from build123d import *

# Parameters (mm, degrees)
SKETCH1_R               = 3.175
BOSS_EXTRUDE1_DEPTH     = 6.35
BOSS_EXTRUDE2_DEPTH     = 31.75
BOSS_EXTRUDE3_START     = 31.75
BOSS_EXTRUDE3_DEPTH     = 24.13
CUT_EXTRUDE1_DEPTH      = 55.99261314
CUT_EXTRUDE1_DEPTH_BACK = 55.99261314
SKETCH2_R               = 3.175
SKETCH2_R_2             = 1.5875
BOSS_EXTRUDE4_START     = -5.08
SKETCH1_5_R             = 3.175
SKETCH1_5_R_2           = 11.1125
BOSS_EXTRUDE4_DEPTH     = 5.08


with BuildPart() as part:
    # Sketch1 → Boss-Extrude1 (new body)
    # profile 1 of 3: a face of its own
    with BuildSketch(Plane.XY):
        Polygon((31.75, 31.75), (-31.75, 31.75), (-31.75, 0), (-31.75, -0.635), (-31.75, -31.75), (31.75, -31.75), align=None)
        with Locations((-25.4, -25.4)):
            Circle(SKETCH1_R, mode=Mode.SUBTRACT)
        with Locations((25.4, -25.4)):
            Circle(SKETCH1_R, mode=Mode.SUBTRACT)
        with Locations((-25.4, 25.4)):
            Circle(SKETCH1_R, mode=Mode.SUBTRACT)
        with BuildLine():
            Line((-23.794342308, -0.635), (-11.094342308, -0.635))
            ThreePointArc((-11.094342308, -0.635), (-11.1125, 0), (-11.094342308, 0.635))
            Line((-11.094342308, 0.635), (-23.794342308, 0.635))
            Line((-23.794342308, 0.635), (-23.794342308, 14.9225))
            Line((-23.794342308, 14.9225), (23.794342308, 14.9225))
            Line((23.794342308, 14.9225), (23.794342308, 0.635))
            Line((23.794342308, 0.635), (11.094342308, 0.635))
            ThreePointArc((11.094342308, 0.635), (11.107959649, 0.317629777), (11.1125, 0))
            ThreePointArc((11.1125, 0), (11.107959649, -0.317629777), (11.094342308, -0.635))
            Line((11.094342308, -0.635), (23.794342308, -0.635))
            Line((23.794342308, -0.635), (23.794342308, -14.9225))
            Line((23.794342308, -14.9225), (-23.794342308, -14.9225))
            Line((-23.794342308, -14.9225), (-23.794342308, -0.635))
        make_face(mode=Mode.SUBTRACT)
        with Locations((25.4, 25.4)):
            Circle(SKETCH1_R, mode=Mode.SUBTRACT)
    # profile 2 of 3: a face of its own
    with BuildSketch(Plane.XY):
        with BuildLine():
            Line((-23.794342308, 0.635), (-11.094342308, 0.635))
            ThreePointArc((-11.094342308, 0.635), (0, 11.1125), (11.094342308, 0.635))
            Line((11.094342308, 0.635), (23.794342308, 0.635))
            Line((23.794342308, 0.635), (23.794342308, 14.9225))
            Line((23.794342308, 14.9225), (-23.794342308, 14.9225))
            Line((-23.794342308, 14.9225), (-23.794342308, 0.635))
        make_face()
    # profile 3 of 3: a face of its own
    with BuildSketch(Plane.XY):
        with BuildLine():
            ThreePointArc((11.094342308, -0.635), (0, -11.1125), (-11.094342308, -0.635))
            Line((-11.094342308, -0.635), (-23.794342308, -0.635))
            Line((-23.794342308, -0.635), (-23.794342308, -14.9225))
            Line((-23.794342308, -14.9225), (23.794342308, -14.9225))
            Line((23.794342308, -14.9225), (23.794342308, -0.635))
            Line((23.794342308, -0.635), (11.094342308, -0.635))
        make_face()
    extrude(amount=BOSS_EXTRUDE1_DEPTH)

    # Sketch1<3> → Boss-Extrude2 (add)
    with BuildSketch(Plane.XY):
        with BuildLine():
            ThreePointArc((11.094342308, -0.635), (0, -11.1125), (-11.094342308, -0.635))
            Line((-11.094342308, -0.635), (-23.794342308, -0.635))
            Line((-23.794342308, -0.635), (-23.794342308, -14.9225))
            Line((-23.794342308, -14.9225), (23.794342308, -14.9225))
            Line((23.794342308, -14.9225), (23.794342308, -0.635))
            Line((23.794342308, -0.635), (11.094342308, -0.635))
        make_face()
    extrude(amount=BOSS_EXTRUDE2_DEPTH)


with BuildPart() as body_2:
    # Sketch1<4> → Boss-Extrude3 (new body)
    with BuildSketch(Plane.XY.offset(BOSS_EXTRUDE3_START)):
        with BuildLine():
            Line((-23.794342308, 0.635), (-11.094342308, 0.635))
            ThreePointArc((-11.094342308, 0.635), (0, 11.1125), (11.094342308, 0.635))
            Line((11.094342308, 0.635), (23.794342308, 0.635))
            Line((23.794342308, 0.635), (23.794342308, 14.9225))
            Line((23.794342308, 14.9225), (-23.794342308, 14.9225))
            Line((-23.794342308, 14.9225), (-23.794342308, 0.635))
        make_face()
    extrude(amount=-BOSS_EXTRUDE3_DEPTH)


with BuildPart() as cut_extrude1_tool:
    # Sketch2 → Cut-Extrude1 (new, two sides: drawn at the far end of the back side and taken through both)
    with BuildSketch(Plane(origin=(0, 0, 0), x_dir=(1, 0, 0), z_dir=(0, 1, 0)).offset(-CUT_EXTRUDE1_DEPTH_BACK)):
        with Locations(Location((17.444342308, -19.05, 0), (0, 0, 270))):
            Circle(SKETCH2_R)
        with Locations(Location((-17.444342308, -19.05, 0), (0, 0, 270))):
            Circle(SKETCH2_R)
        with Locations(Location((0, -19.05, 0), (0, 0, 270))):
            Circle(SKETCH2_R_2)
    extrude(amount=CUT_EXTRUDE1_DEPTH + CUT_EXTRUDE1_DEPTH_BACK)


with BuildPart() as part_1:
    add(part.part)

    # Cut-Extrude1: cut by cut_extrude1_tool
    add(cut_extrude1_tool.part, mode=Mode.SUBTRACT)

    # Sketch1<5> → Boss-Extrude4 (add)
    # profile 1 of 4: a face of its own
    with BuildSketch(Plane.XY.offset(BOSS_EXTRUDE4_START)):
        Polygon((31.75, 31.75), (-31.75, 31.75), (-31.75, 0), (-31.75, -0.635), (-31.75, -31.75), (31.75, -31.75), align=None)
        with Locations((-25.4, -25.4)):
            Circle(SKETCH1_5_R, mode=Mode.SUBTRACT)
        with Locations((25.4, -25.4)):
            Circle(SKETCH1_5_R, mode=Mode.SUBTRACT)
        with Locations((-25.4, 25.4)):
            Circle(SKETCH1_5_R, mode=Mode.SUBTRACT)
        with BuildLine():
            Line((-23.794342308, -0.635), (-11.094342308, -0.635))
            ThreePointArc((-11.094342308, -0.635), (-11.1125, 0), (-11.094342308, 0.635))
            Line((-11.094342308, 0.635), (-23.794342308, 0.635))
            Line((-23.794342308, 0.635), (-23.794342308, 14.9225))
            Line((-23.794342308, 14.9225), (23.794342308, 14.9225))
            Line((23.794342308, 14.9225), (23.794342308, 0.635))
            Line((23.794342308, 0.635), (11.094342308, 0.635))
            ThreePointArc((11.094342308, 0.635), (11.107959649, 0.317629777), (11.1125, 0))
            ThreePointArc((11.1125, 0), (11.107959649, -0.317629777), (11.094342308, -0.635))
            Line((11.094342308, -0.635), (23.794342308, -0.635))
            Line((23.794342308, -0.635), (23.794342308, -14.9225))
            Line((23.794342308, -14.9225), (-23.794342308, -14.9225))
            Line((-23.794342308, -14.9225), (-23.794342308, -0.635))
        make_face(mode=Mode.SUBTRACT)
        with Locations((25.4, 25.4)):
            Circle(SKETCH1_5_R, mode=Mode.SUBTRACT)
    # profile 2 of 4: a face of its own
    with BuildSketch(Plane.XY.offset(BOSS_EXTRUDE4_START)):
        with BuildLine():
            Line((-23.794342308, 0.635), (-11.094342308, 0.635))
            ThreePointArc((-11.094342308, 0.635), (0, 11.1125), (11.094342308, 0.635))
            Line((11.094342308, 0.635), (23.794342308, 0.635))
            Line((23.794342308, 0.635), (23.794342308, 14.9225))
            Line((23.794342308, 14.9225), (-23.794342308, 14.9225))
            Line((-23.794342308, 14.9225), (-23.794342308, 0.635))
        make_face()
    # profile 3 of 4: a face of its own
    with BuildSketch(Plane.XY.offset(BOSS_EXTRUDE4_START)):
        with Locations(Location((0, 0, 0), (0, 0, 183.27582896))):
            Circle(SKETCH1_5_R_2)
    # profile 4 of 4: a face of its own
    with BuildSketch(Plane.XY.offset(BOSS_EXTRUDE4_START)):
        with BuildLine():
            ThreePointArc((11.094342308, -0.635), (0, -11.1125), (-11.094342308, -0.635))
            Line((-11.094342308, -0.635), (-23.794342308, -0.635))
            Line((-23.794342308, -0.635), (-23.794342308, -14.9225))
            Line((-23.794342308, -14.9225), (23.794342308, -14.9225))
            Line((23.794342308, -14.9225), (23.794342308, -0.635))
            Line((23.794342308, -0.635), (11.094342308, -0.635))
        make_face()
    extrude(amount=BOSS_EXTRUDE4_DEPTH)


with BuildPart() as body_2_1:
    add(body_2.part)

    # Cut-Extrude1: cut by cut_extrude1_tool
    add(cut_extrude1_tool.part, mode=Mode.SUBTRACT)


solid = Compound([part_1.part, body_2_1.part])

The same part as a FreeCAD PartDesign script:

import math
import FreeCAD as App
import Part
import Sketcher

V = App.Vector
Q = App.Units.Quantity

doc = App.newDocument("Part")
body = doc.addObject("PartDesign::Body", "Body")

sketch1 = body.newObject("Sketcher::SketchObject", "Sketch")
sketch1.AttachmentSupport = (doc.getObject("XY_Plane"), [""])
sketch1.MapMode = "FlatFace"
sketch1.addGeometry(Part.LineSegment(V(31.75, 31.75, 0), V(-31.75, 31.75, 0)), False)
sketch1.addGeometry(Part.LineSegment(V(-31.75, 31.75, 0), V(-31.75, -31.75, 0)), False)
sketch1.addGeometry(Part.LineSegment(V(-31.75, -31.75, 0), V(31.75, -31.75, 0)), False)
sketch1.addGeometry(Part.LineSegment(V(31.75, -31.75, 0), V(31.75, 31.75, 0)), False)
sketch1.addGeometry(Part.Circle(V(-25.4, -25.4, 0), V(0, 0, 1), 3.175), False)
sketch1.addGeometry(Part.Circle(V(25.4, -25.4, 0), V(0, 0, 1), 3.175), False)
sketch1.addGeometry(Part.Circle(V(-25.4, 25.4, 0), V(0, 0, 1), 3.175), False)
sketch1.addGeometry(Part.ArcOfCircle(Part.Circle(V(0, 0, 0), V(0, 0, 1), 11.1125), math.radians(176.724171), math.radians(183.275829)), False)
sketch1.addGeometry(Part.ArcOfCircle(Part.Circle(V(0, 0, 0), V(0, 0, 1), 11.1125), math.radians(3.275829), math.radians(176.724171)), False)
sketch1.addGeometry(Part.ArcOfCircle(Part.Circle(V(-0.000001, 0, 0), V(0, 0, 1), 11.112501), math.radians(0), math.radians(3.275829)), False)
sketch1.addGeometry(Part.ArcOfCircle(Part.Circle(V(-0.000001, 0, 0), V(0, 0, 1), 11.112501), math.radians(-3.275829), math.radians(0)), False)
sketch1.addGeometry(Part.ArcOfCircle(Part.Circle(V(0, 0, 0), V(0, 0, 1), 11.1125), math.radians(-176.724171), math.radians(-3.275829)), False)
sketch1.addGeometry(Part.Circle(V(25.4, 25.4, 0), V(0, 0, 1), 3.175), False)
sketch1.addConstraint(Sketcher.Constraint("Coincident", 0, 2, 1, 1))
sketch1.addConstraint(Sketcher.Constraint("Coincident", 1, 2, 2, 1))
sketch1.addConstraint(Sketcher.Constraint("Coincident", 2, 2, 3, 1))
sketch1.addConstraint(Sketcher.Constraint("Coincident", 3, 2, 0, 1))
sketch1.addConstraint(Sketcher.Constraint("Tangent", 7, 1, 8, 2))
sketch1.addConstraint(Sketcher.Constraint("Tangent", 8, 1, 9, 2))
sketch1.addConstraint(Sketcher.Constraint("Tangent", 9, 1, 10, 2))
sketch1.addConstraint(Sketcher.Constraint("Tangent", 10, 1, 11, 2))
sketch1.addConstraint(Sketcher.Constraint("Tangent", 11, 1, 7, 2))
sketch1.addConstraint(Sketcher.Constraint("Horizontal", 0))
sketch1.addConstraint(Sketcher.Constraint("Vertical", 1))
sketch1.addConstraint(Sketcher.Constraint("Horizontal", 2))
sketch1.addConstraint(Sketcher.Constraint("Vertical", 3))
sketch1.addConstraint(Sketcher.Constraint("Coincident", 7, 3, -1, 1))
sketch1.addConstraint(Sketcher.Constraint("Coincident", 9, 3, -1, 1))
sketch1.addConstraint(Sketcher.Constraint("Equal", 4, 5))
sketch1.addConstraint(Sketcher.Constraint("Equal", 5, 6))
sketch1.addConstraint(Sketcher.Constraint("Equal", 6, 12))
sketch1.addConstraint(Sketcher.Constraint("Symmetric", 5, 3, 6, 3, -1, 1))
sketch1.addConstraint(Sketcher.Constraint("Symmetric", 4, 3, 12, 3, -1, 1))
sketch1.addConstraint(Sketcher.Constraint("Symmetric", 0, 2, 2, 2, -1, 1))
sketch1.addConstraint(Sketcher.Constraint("Symmetric", 4, 3, 5, 3, -2))
sketch1.addConstraint(Sketcher.Constraint("PointOnObject", 9, 1, -1))
sketch1.addConstraint(Sketcher.Constraint("Horizontal", 7, 1, 8, 1))
sketch1.addConstraint(Sketcher.Constraint("Horizontal", 10, 1, 11, 1))
sketch1.addConstraint(Sketcher.Constraint("Vertical", 8, 1, 10, 1))
sketch1.addConstraint(Sketcher.Constraint("Equal", 2, 1))
sketch1.addConstraint(Sketcher.Constraint("Diameter", 4, Q("0.25 in")))
sketch1.addConstraint(Sketcher.Constraint("DistanceX", 0, 2, 0, 1, Q("2.5 in")))
sketch1.addConstraint(Sketcher.Constraint("DistanceX", 4, 3, -1, 1, Q("1 in")))
sketch1.addConstraint(Sketcher.Constraint("DistanceY", 4, 3, -1, 1, Q("1 in")))
sketch1.addConstraint(Sketcher.Constraint("Radius", 7, Q("0.4375 in")))
sketch1.addConstraint(Sketcher.Constraint("DistanceY", 10, 1, 8, 1, Q("0.05 in")))
pad1 = body.newObject("PartDesign::Pad", "Pad")
pad1.Profile = sketch1
pad1.Length = Q("0.25 in")

sketch2 = body.newObject("Sketcher::SketchObject", "Sketch001")
sketch2.AttachmentSupport = (doc.getObject("XY_Plane"), [""])
sketch2.MapMode = "FlatFace"
sketch2.addGeometry(Part.ArcOfCircle(Part.Circle(V(0, 0, 0), V(0, 0, 1), 11.1125), math.radians(-176.724171), math.radians(-3.275829)), False)
sketch2.addGeometry(Part.LineSegment(V(-11.094342, -0.635, 0), V(-23.794342, -0.635, 0)), False)
sketch2.addGeometry(Part.LineSegment(V(-23.794342, -0.635, 0), V(-23.794342, -14.9225, 0)), False)
sketch2.addGeometry(Part.LineSegment(V(-23.794342, -14.9225, 0), V(23.794342, -14.9225, 0)), False)
sketch2.addGeometry(Part.LineSegment(V(23.794342, -14.9225, 0), V(23.794342, -0.635, 0)), False)
sketch2.addGeometry(Part.LineSegment(V(23.794342, -0.635, 0), V(11.094342, -0.635, 0)), False)
sketch2.addConstraint(Sketcher.Constraint("Coincident", 0, 1, 1, 1))
sketch2.addConstraint(Sketcher.Constraint("Coincident", 1, 2, 2, 1))
sketch2.addConstraint(Sketcher.Constraint("Coincident", 2, 2, 3, 1))
sketch2.addConstraint(Sketcher.Constraint("Coincident", 3, 2, 4, 1))
sketch2.addConstraint(Sketcher.Constraint("Coincident", 4, 2, 5, 1))
sketch2.addConstraint(Sketcher.Constraint("Coincident", 5, 2, 0, 2))
sketch2.addConstraint(Sketcher.Constraint("Horizontal", 1))
sketch2.addConstraint(Sketcher.Constraint("Vertical", 2))
sketch2.addConstraint(Sketcher.Constraint("Horizontal", 3))
sketch2.addConstraint(Sketcher.Constraint("Vertical", 4))
sketch2.addConstraint(Sketcher.Constraint("Horizontal", 5))
sketch2.addConstraint(Sketcher.Constraint("Coincident", 0, 3, -1, 1))
sketch2.addConstraint(Sketcher.Constraint("Symmetric", 1, 2, 4, 2, -2))
sketch2.addConstraint(Sketcher.Constraint("DistanceX", 1, 2, 1, 1, Q("0.5 in")))
sketch2.addConstraint(Sketcher.Constraint("Radius", 0, Q("0.4375 in")))
sketch2.addConstraint(Sketcher.Constraint("DistanceY", 2, 2, 2, 1, Q("0.5625 in")))
sketch2.addConstraint(Sketcher.Constraint("DistanceY", 0, 1, -1, 1, Q("0.025 in")))
pad2 = body.newObject("PartDesign::Pad", "Pad001")
pad2.Profile = sketch2
pad2.Length = Q("1.25 in")
body2 = doc.addObject("PartDesign::Body", "Body001")

sketch3 = body2.newObject("Sketcher::SketchObject", "Sketch002")
sketch3.AttachmentSupport = (doc.getObject("XY_Plane001"), [""])
sketch3.MapMode = "FlatFace"
sketch3.AttachmentOffset = App.Placement(V(0, 0, 1.25 * 25.4), App.Rotation())
sketch3.addGeometry(Part.LineSegment(V(-23.794342, 0.635, 0), V(-11.094342, 0.635, 0)), False)
sketch3.addGeometry(Part.ArcOfCircle(Part.Circle(V(0, 0, 0), V(0, 0, 1), 11.1125), math.radians(3.275829), math.radians(176.724171)), False)
sketch3.addGeometry(Part.LineSegment(V(11.094342, 0.635, 0), V(23.794342, 0.635, 0)), False)
sketch3.addGeometry(Part.LineSegment(V(23.794342, 0.635, 0), V(23.794342, 14.9225, 0)), False)
sketch3.addGeometry(Part.LineSegment(V(23.794342, 14.9225, 0), V(-23.794342, 14.9225, 0)), False)
sketch3.addGeometry(Part.LineSegment(V(-23.794342, 14.9225, 0), V(-23.794342, 0.635, 0)), False)
sketch3.addConstraint(Sketcher.Constraint("Coincident", 0, 2, 1, 2))
sketch3.addConstraint(Sketcher.Constraint("Coincident", 1, 1, 2, 1))
sketch3.addConstraint(Sketcher.Constraint("Coincident", 2, 2, 3, 1))
sketch3.addConstraint(Sketcher.Constraint("Coincident", 3, 2, 4, 1))
sketch3.addConstraint(Sketcher.Constraint("Coincident", 4, 2, 5, 1))
sketch3.addConstraint(Sketcher.Constraint("Coincident", 5, 2, 0, 1))
sketch3.addConstraint(Sketcher.Constraint("Horizontal", 0))
sketch3.addConstraint(Sketcher.Constraint("Horizontal", 2))
sketch3.addConstraint(Sketcher.Constraint("Vertical", 3))
sketch3.addConstraint(Sketcher.Constraint("Horizontal", 4))
sketch3.addConstraint(Sketcher.Constraint("Vertical", 5))
sketch3.addConstraint(Sketcher.Constraint("Coincident", 1, 3, -1, 1))
sketch3.addConstraint(Sketcher.Constraint("Symmetric", 2, 2, 5, 2, -2))
sketch3.addConstraint(Sketcher.Constraint("DistanceX", 0, 1, 0, 2, Q("0.5 in")))
sketch3.addConstraint(Sketcher.Constraint("Radius", 1, Q("0.4375 in")))
sketch3.addConstraint(Sketcher.Constraint("DistanceY", 3, 1, 3, 2, Q("0.5625 in")))
sketch3.addConstraint(Sketcher.Constraint("DistanceY", -1, 1, 0, 2, Q("0.025 in")))
pad3 = body2.newObject("PartDesign::Pad", "Pad002")
pad3.Profile = sketch3
pad3.Length = Q("0.95 in")
pad3.Reversed = True
body3 = doc.addObject("PartDesign::Body", "Body002")
body3.AllowCompound = True

sketch4 = body3.newObject("Sketcher::SketchObject", "Sketch003")
sketch4.AttachmentSupport = (doc.getObject("XZ_Plane002"), [""])
sketch4.MapMode = "FlatFace"
sketch4.addGeometry(Part.Circle(V(17.444342, 19.05, 0), V(0, 0, 1), 3.175), False)
sketch4.addGeometry(Part.Circle(V(-17.444342, 19.05, 0), V(0, 0, 1), 3.175), False)
sketch4.addGeometry(Part.Circle(V(0, 19.05, 0), V(0, 0, 1), 1.5875), False)
sketch4.addConstraint(Sketcher.Constraint("Equal", 0, 1))
sketch4.addConstraint(Sketcher.Constraint("Symmetric", 0, 3, 1, 3, -2))
sketch4.addConstraint(Sketcher.Constraint("PointOnObject", 2, 3, -2))
sketch4.addConstraint(Sketcher.Constraint("Horizontal", 1, 3, 2, 3))
sketch4.addConstraint(Sketcher.Constraint("Diameter", 0, Q("0.25 in")))
sketch4.addConstraint(Sketcher.Constraint("Diameter", 2, Q("0.125 in")))
sketch4.addConstraint(Sketcher.Constraint("DistanceY", -1, 1, 0, 3, Q("0.75 in")))
sketch4.addConstraint(Sketcher.Constraint("DistanceX", -1, 1, 0, 3, 17.444342))
pad4 = body3.newObject("PartDesign::Pad", "Pad003")
pad4.Profile = sketch4
pad4.Type = "TwoLengths"
pad4.Length = 55.992613
pad4.Length2 = 55.992613
pad4.Reversed = True
doc.recompute()

body4 = doc.addObject("PartDesign::Body", "Body003")
body4.BaseFeature = body3
boolean = body.newObject("PartDesign::Boolean", "Boolean")
boolean.Type = "Cut"
boolean.addObjects([body4])
doc.recompute()

sketch5 = body.newObject("Sketcher::SketchObject", "Sketch004")
sketch5.AttachmentSupport = (doc.getObject("XY_Plane"), [""])
sketch5.MapMode = "FlatFace"
sketch5.AttachmentOffset = App.Placement(V(0, 0, -0.2 * 25.4), App.Rotation())
sketch5.addGeometry(Part.LineSegment(V(31.75, 31.75, 0), V(-31.75, 31.75, 0)), False)
sketch5.addGeometry(Part.LineSegment(V(-31.75, 31.75, 0), V(-31.75, -31.75, 0)), False)
sketch5.addGeometry(Part.LineSegment(V(-31.75, -31.75, 0), V(31.75, -31.75, 0)), False)
sketch5.addGeometry(Part.LineSegment(V(31.75, -31.75, 0), V(31.75, 31.75, 0)), False)
sketch5.addGeometry(Part.Circle(V(-25.4, -25.4, 0), V(0, 0, 1), 3.175), False)
sketch5.addGeometry(Part.Circle(V(25.4, -25.4, 0), V(0, 0, 1), 3.175), False)
sketch5.addGeometry(Part.Circle(V(-25.4, 25.4, 0), V(0, 0, 1), 3.175), False)
sketch5.addGeometry(Part.Circle(V(25.4, 25.4, 0), V(0, 0, 1), 3.175), False)
sketch5.addConstraint(Sketcher.Constraint("Coincident", 0, 2, 1, 1))
sketch5.addConstraint(Sketcher.Constraint("Coincident", 1, 2, 2, 1))
sketch5.addConstraint(Sketcher.Constraint("Coincident", 2, 2, 3, 1))
sketch5.addConstraint(Sketcher.Constraint("Coincident", 3, 2, 0, 1))
sketch5.addConstraint(Sketcher.Constraint("Horizontal", 0))
sketch5.addConstraint(Sketcher.Constraint("Vertical", 1))
sketch5.addConstraint(Sketcher.Constraint("Horizontal", 2))
sketch5.addConstraint(Sketcher.Constraint("Vertical", 3))
sketch5.addConstraint(Sketcher.Constraint("Equal", 4, 5))
sketch5.addConstraint(Sketcher.Constraint("Equal", 5, 6))
sketch5.addConstraint(Sketcher.Constraint("Equal", 6, 7))
sketch5.addConstraint(Sketcher.Constraint("Symmetric", 5, 3, 6, 3, -1, 1))
sketch5.addConstraint(Sketcher.Constraint("Symmetric", 4, 3, 7, 3, -1, 1))
sketch5.addConstraint(Sketcher.Constraint("Symmetric", 0, 2, 2, 2, -1, 1))
sketch5.addConstraint(Sketcher.Constraint("Symmetric", 4, 3, 5, 3, -2))
sketch5.addConstraint(Sketcher.Constraint("Equal", 2, 1))
sketch5.addConstraint(Sketcher.Constraint("Diameter", 4, Q("0.25 in")))
sketch5.addConstraint(Sketcher.Constraint("DistanceX", 0, 2, 0, 1, Q("2.5 in")))
sketch5.addConstraint(Sketcher.Constraint("DistanceX", 4, 3, -1, 1, Q("1 in")))
sketch5.addConstraint(Sketcher.Constraint("DistanceY", 4, 3, -1, 1, Q("1 in")))
pad5 = body.newObject("PartDesign::Pad", "Pad004")
pad5.Profile = sketch5
pad5.Length = Q("0.2 in")
doc.recompute()

boolean2 = body2.newObject("PartDesign::Boolean", "Boolean001")
boolean2.Type = "Cut"
boolean2.addObjects([body3])

doc.recompute()
